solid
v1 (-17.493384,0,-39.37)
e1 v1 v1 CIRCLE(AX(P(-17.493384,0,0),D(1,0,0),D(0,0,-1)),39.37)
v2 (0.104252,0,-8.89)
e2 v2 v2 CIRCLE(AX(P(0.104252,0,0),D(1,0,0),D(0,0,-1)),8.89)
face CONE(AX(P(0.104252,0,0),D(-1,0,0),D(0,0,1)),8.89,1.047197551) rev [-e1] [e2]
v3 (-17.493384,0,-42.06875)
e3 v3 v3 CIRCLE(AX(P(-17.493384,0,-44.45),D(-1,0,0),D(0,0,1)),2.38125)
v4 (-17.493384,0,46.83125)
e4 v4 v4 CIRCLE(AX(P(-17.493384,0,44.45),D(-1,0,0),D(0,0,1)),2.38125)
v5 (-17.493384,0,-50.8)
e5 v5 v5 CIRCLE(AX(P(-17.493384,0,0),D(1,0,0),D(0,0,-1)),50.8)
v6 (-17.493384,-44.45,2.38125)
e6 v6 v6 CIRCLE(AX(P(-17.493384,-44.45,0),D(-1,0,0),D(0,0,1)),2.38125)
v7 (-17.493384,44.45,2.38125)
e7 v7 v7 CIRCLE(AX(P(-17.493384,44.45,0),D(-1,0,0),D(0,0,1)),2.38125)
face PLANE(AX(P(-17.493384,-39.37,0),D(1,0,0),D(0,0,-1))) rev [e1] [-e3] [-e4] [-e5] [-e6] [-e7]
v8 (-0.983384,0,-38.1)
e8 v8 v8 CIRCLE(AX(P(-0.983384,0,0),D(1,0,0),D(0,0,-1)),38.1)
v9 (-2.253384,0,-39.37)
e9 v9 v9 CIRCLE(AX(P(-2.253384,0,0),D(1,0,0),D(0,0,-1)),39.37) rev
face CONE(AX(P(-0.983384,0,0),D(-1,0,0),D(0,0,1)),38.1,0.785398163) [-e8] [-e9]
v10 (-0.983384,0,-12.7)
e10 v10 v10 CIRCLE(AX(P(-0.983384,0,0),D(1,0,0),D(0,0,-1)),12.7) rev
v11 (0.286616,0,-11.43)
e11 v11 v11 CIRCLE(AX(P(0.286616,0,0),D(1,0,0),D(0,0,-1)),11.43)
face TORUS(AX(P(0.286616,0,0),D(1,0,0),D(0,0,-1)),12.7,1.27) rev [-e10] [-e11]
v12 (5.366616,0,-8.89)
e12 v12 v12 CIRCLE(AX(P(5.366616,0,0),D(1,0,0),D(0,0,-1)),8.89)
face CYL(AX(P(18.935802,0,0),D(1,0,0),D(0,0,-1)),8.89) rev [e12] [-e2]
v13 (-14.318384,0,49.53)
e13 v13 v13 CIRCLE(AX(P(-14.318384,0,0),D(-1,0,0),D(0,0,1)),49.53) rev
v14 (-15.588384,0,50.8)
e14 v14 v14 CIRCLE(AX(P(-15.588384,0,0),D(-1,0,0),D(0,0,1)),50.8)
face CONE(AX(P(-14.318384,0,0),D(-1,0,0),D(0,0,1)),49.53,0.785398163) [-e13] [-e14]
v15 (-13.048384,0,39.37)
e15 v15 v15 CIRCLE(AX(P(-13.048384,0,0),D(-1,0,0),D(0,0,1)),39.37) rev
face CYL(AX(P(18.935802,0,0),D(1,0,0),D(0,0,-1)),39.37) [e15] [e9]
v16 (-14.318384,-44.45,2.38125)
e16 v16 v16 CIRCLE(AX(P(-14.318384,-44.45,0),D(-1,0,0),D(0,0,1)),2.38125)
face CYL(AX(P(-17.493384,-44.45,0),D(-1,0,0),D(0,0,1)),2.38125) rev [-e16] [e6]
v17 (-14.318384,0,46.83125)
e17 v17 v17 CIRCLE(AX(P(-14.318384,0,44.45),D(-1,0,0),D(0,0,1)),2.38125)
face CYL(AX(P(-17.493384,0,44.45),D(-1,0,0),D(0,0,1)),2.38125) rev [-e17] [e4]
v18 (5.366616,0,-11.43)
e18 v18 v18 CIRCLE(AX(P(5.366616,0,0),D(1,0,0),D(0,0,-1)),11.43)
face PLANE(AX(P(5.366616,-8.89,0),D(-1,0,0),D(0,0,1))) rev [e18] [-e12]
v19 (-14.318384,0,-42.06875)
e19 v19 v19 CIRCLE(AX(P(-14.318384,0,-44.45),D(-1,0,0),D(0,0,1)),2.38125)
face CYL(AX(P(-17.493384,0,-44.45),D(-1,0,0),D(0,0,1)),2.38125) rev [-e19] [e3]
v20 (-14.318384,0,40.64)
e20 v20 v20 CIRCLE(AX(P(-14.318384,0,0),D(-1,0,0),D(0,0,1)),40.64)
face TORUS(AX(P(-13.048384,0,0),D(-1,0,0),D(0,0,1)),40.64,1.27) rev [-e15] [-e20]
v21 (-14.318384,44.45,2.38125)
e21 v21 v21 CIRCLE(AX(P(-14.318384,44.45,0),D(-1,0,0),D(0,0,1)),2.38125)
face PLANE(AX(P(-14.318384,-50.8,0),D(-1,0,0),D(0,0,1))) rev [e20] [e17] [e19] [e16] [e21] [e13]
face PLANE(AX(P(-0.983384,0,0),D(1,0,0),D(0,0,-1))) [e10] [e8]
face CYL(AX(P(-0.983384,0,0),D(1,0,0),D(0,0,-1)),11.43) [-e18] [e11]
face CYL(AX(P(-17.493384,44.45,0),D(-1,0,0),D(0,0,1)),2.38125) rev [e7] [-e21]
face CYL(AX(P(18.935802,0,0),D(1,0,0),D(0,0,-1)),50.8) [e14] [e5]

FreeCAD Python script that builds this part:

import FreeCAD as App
import Part
import Sketcher

V = App.Vector
Q = App.Units.Quantity


def edges_at(feature, points):
    """Names of the edges that pass closest to the given points."""
    edges = feature.Shape.Edges
    near = lambda p: min(range(len(edges)), key=lambda i: edges[i].distToShape(Part.Vertex(*p))[0])
    return sorted({f"Edge{near(p) + 1}" for p in points})

doc = App.newDocument("Part")
body = doc.addObject("PartDesign::Body", "Body")

# Sketch on XY plane
sketch1 = body.newObject("Sketcher::SketchObject", "Sketch")
sketch1.AttachmentSupport = (doc.getObject("XY_Plane"), [""])
sketch1.MapMode = "FlatFace"
sketch1.addGeometry([
    Part.LineSegment(V(-17.5, -39.4, 0), V(-17.5, -50.8, 0)),  # 0
    Part.LineSegment(V(-17.5, -50.8, 0), V(-14.3, -50.8, 0)),  # 1
    Part.LineSegment(V(-14.3, -50.8, 0), V(-14.3, -39.4, 0)),  # 2
    Part.LineSegment(V(-14.3, -39.4, 0), V(5.4, -39.4, 0)),  # 3
    Part.LineSegment(V(5.4, -39.4, 0), V(5.4, -8.9, 0)),  # 4
    Part.LineSegment(V(5.4, -8.9, 0), V(0.1, -8.9, 0)),  # 5
    Part.LineSegment(V(0.1, -8.9, 0), V(-17.5, -39.4, 0)),  # 6
], False)
sketch1.addConstraint([
    Sketcher.Constraint("Coincident", 0, 2, 1, 1),
    Sketcher.Constraint("Coincident", 1, 2, 2, 1),
    Sketcher.Constraint("Coincident", 2, 2, 3, 1),
    Sketcher.Constraint("Coincident", 3, 2, 4, 1),
    Sketcher.Constraint("Coincident", 4, 2, 5, 1),
    Sketcher.Constraint("Coincident", 5, 2, 6, 1),
    Sketcher.Constraint("Coincident", 6, 2, 0, 1),
    Sketcher.Constraint("Vertical", 0),
    Sketcher.Constraint("Horizontal", 1),
    Sketcher.Constraint("Vertical", 2),
    Sketcher.Constraint("Horizontal", 3),
    Sketcher.Constraint("Vertical", 4),
    Sketcher.Constraint("Horizontal", 5),
    Sketcher.Constraint("Horizontal", 3, 2, 6, 2),
    Sketcher.Constraint("DistanceY", 4, 1, 4, 2, Q("1.2 in")),
    Sketcher.Constraint("DistanceY", 0, 2, -1, 1, Q("2 in")),
    Sketcher.Constraint("Angle", 6, Q("-120 deg")),
    Sketcher.Constraint("DistanceY", 0, 2, 0, 1, Q("0.45 in")),
    Sketcher.Constraint("DistanceX", 0, 2, 3, 2, Q("0.9 in")),
    Sketcher.Constraint("DistanceX", 1, 1, 1, 2, Q("0.125 in")),
    Sketcher.Constraint("DistanceX", 0, 2, -1, 1, 17.493384),
])
revolution = body.newObject("PartDesign::Revolution", "Revolution")
revolution.Profile = sketch1
revolution.ReferenceAxis = (sketch1, ["H_Axis"])
revolution.Angle = 360
doc.recompute()

fillet = body.newObject("PartDesign::Fillet", "Fillet")
fillet.Base = (revolution, edges_at(revolution, [(-14.318, 39.37, 0)]))
fillet.Radius = Q("0.05 in")

# Sketch on YZ plane
sketch2 = body.newObject("Sketcher::SketchObject", "Sketch001")
sketch2.AttachmentSupport = (doc.getObject("YZ_Plane"), [""])
sketch2.MapMode = "FlatFace"
sketch2.AttachmentOffset = App.Placement(V(0, 0, 5.366616), App.Rotation())
sketch2.addGeometry([
    Part.Circle(V(0, 0, 0), V(0, 0, 1), 39),
    Part.Circle(V(0, 0, 0), V(0, 0, 1), 11),
], False)
sketch2.addConstraint([
    Sketcher.Constraint("Coincident", 0, 3, -1, 1),
    Sketcher.Constraint("Coincident", 1, 3, -1, 1),
    Sketcher.Constraint("Diameter", 0, Q("3.1 in")),
    Sketcher.Constraint("Diameter", 1, Q("0.9 in")),
])
pocket1 = body.newObject("PartDesign::Pocket", "Pocket")
pocket1.Profile = sketch2
pocket1.Length = Q("0.25 in")
doc.recompute()

chamfer = body.newObject("PartDesign::Chamfer", "Chamfer")
chamfer.Base = (pocket1, edges_at(pocket1, [(-0.983, 39.37, 0), (-14.318, 50.8, 0)]))
chamfer.Size = Q("0.05 in")
doc.recompute()

fillet2 = body.newObject("PartDesign::Fillet", "Fillet001")
fillet2.Base = (chamfer, edges_at(chamfer, [(-0.983, 0, 11.43)]))
fillet2.Radius = Q("0.05 in")

# Sketch on YZ plane
sketch3 = body.newObject("Sketcher::SketchObject", "Sketch002")
sketch3.AttachmentSupport = (doc.getObject("YZ_Plane"), [""])
sketch3.MapMode = "FlatFace"
sketch3.AttachmentOffset = App.Placement(V(0, 0, -17.493384), App.Rotation())
sketch3.addGeometry([
    Part.Circle(V(0, -44.5, 0), V(0, 0, 1), 2.4),
    Part.Circle(V(44.5, 0, 0), V(0, 0, 1), 2.4),
    Part.Circle(V(0, 44.5, 0), V(0, 0, 1), 2.4),
    Part.Circle(V(-44.5, 0, 0), V(0, 0, 1), 2.4),
], False)
sketch3.addConstraint([
    Sketcher.Constraint("Equal", 0, 1),
    Sketcher.Constraint("Equal", 1, 2),
    Sketcher.Constraint("Equal", 2, 3),
    Sketcher.Constraint("Symmetric", 0, 3, 2, 3, -1, 1),
    Sketcher.Constraint("Symmetric", 1, 3, 3, 3, -1, 1),
    Sketcher.Constraint("PointOnObject", 0, 3, -2),
    Sketcher.Constraint("PointOnObject", 1, 3, -1),
    Sketcher.Constraint("Diameter", 0, Q("0.1875 in")),
    Sketcher.Constraint("DistanceY", 0, 3, 2, 3, Q("3.5 in")),
    Sketcher.Constraint("DistanceX", 3, 3, 1, 3, Q("3.5 in")),
])
doc.recompute()
hole = body.newObject("PartDesign::Hole", "Hole")
hole.Profile = sketch3
hole.ThreadType = "None"
hole.Diameter = Q("0.1875 in")
hole.DepthType = "Dimension"
hole.Depth = Q("0.55 in")
hole.DrillPoint = "Angled"
hole.DrillPointAngle = 118
hole.Reversed = True

doc.recompute()
